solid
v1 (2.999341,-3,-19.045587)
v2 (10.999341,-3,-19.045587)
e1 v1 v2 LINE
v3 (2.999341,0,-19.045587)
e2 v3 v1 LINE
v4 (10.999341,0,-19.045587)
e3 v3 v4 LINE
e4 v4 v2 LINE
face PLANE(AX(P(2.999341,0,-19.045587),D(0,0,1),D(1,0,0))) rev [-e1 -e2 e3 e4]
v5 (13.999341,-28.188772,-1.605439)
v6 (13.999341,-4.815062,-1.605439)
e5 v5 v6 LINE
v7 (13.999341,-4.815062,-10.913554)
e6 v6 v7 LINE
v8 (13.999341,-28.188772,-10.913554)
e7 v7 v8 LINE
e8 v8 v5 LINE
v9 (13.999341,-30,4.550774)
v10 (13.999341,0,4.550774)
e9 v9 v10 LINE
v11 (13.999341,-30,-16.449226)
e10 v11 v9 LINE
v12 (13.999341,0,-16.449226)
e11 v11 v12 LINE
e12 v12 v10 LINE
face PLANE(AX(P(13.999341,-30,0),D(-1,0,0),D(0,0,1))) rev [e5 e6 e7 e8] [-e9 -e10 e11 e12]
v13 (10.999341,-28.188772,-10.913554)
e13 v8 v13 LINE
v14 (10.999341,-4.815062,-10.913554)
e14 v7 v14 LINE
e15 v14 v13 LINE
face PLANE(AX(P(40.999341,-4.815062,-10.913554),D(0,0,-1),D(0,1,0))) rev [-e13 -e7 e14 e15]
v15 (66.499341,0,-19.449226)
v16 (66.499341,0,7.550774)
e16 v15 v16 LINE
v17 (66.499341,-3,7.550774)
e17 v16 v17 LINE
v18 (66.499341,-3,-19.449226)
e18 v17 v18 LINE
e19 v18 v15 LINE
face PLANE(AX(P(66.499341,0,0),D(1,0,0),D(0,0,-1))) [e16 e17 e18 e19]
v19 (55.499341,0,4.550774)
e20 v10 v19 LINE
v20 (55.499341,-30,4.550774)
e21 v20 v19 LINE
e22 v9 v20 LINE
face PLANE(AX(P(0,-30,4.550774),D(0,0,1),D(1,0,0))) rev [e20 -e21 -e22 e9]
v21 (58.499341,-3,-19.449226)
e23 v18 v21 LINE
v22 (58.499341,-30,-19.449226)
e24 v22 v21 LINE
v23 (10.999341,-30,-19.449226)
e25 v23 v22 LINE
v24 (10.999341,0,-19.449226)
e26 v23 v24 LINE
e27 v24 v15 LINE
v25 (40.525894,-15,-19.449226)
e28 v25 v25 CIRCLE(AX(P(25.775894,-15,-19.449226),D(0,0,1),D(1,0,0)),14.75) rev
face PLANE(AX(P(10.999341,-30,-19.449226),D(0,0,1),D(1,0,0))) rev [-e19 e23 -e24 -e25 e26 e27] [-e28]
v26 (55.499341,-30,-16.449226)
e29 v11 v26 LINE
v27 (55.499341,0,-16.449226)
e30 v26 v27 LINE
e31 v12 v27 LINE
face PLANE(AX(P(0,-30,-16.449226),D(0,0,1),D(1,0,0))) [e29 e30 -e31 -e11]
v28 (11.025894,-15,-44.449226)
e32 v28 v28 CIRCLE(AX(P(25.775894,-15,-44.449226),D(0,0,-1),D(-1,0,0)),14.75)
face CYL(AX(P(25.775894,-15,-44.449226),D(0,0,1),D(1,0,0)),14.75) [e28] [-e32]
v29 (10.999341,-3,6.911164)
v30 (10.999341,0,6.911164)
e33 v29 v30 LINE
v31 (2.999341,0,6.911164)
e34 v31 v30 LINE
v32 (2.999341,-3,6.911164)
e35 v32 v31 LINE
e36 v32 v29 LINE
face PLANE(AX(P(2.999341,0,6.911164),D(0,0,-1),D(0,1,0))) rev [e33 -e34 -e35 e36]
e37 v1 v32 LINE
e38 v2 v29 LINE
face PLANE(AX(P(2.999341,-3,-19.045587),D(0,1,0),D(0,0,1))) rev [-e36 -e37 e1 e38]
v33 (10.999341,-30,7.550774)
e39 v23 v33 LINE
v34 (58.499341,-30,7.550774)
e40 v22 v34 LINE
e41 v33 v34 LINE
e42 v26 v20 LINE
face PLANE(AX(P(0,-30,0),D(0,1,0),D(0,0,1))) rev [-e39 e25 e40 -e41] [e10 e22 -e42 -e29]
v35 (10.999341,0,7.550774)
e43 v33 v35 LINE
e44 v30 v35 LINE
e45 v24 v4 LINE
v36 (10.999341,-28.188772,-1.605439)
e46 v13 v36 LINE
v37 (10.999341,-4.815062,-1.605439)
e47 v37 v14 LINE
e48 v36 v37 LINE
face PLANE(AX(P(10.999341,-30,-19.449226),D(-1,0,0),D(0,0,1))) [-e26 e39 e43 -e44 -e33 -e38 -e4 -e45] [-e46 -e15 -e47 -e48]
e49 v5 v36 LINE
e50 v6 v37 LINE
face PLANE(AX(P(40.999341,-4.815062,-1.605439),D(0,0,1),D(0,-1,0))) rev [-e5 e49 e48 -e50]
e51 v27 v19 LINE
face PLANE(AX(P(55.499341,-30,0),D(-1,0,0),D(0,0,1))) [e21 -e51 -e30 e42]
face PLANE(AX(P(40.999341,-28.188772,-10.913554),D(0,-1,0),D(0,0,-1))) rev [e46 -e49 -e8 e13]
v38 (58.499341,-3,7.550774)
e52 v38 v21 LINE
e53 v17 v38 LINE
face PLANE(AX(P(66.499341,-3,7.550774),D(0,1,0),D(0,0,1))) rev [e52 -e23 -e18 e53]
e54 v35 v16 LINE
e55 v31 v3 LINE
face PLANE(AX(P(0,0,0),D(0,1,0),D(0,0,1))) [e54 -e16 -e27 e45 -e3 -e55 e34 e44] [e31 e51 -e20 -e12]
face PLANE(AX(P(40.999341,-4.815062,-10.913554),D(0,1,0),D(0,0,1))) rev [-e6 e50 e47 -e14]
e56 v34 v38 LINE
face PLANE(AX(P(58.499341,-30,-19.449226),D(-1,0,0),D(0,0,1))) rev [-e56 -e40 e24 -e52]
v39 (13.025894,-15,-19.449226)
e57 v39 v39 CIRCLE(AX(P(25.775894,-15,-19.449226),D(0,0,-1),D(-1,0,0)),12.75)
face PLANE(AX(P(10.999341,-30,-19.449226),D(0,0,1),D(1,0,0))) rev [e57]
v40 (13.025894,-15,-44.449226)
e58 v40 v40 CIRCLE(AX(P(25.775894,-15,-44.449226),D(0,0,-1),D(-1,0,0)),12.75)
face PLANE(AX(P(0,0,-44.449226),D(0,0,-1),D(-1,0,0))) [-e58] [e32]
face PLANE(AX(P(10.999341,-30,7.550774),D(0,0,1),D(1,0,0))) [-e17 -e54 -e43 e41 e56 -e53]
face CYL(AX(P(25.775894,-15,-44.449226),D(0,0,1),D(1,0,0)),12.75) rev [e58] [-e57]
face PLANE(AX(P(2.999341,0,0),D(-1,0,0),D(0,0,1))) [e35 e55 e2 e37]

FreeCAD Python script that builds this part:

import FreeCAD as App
import Part
import Sketcher

doc = App.newDocument("Part")
params = doc.addObject("Spreadsheet::Sheet", "Params")
for row, (alias, value) in enumerate([
    ("sketch1_height", "27 mm"),
    ("sketch1_height2", "21 mm"),
    ("sketch1_width", "47.5 mm"),
    ("sketch1_width2", "41.5 mm"),
    ("pad1_length", "30 mm"),
    ("pocket1_length", "30 mm"),
    ("sketch3_width", "3 mm"),
    ("pad2_length", "8 mm"),
    ("sketch4_width", "3 mm"),
    ("sketch4_height", "27 mm"),
    ("pad3_length", "8 mm"),
    ("sketch5_diameter", "29.5 mm"),
    ("sketch5_diameter2", "25.5 mm"),
    ("pad4_length", "25 mm"),
], start=1):
    params.set(f"A{row}", alias)
    params.set(f"B{row}", "=" + value)
    params.setAlias(f"B{row}", alias)

body = doc.addObject("PartDesign::Body", "Body")

sketch1 = body.newObject("Sketcher::SketchObject", "Sketch")
sketch1.AttachmentSupport = (doc.getObject("XZ_Plane"), [""])
sketch1.MapMode = "FlatFace"
sketch1.addGeometry(Part.LineSegment(App.Vector(11, -19, 0), App.Vector(11, 8, 0)), False)
sketch1.addGeometry(Part.LineSegment(App.Vector(11, 8, 0), App.Vector(58, 8, 0)), False)
sketch1.addGeometry(Part.LineSegment(App.Vector(58, 8, 0), App.Vector(58, -19, 0)), False)
sketch1.addGeometry(Part.LineSegment(App.Vector(58, -19, 0), App.Vector(11, -19, 0)), False)
sketch1.addGeometry(Part.LineSegment(App.Vector(55, 5, 0), App.Vector(14, 5, 0)), False)
sketch1.addGeometry(Part.LineSegment(App.Vector(14, 5, 0), App.Vector(14, -16, 0)), False)
sketch1.addGeometry(Part.LineSegment(App.Vector(14, -16, 0), App.Vector(55, -16, 0)), False)
sketch1.addGeometry(Part.LineSegment(App.Vector(55, -16, 0), App.Vector(55, 5, 0)), False)
sketch1.addConstraint(Sketcher.Constraint("Coincident", 0, 2, 1, 1))
sketch1.addConstraint(Sketcher.Constraint("Coincident", 1, 2, 2, 1))
sketch1.addConstraint(Sketcher.Constraint("Coincident", 2, 2, 3, 1))
sketch1.addConstraint(Sketcher.Constraint("Coincident", 3, 2, 0, 1))
sketch1.addConstraint(Sketcher.Constraint("Coincident", 4, 2, 5, 1))
sketch1.addConstraint(Sketcher.Constraint("Coincident", 5, 2, 6, 1))
sketch1.addConstraint(Sketcher.Constraint("Coincident", 6, 2, 7, 1))
sketch1.addConstraint(Sketcher.Constraint("Coincident", 7, 2, 4, 1))
sketch1.addConstraint(Sketcher.Constraint("Vertical", 0))
sketch1.addConstraint(Sketcher.Constraint("Horizontal", 1))
sketch1.addConstraint(Sketcher.Constraint("Vertical", 2))
sketch1.addConstraint(Sketcher.Constraint("Horizontal", 3))
sketch1.addConstraint(Sketcher.Constraint("Horizontal", 4))
sketch1.addConstraint(Sketcher.Constraint("Vertical", 5))
sketch1.addConstraint(Sketcher.Constraint("Horizontal", 6))
sketch1.addConstraint(Sketcher.Constraint("Vertical", 7))
sketch1.addConstraint(Sketcher.Constraint("DistanceY", 0, 1, 0, 2, 27.0))
sketch1.addConstraint(Sketcher.Constraint("DistanceY", 5, 2, 5, 1, 21.0))
sketch1.addConstraint(Sketcher.Constraint("DistanceX", 1, 1, 1, 2, 47.5))
sketch1.addConstraint(Sketcher.Constraint("DistanceX", 4, 2, 4, 1, 41.5))
sketch1.addConstraint(Sketcher.Constraint("DistanceX", 0, 2, 4, 2, 3.0))
sketch1.addConstraint(Sketcher.Constraint("DistanceY", 4, 2, 0, 2, 3.0))
sketch1.addConstraint(Sketcher.Constraint("DistanceX", -1, 1, 0, 2, 10.999341))
sketch1.addConstraint(Sketcher.Constraint("DistanceY", -1, 1, 0, 2, 7.550774))
sketch1.setExpression("Constraints[16]", "Params.sketch1_height")
sketch1.setExpression("Constraints[17]", "Params.sketch1_height2")
sketch1.setExpression("Constraints[18]", "Params.sketch1_width")
sketch1.setExpression("Constraints[19]", "Params.sketch1_width2")
pad1 = body.newObject("PartDesign::Pad", "Pad")
pad1.Profile = sketch1
pad1.setExpression("Length", "Params.pad1_length")

sketch2 = body.newObject("Sketcher::SketchObject", "Sketch001")
sketch2.AttachmentSupport = (doc.getObject("YZ_Plane"), [""])
sketch2.MapMode = "FlatFace"
sketch2.AttachmentOffset = App.Placement(App.Vector(0, 0, 10.999341), App.Rotation())
sketch2.addGeometry(Part.LineSegment(App.Vector(-5, -11, 0), App.Vector(-28, -11, 0)), False)
sketch2.addGeometry(Part.LineSegment(App.Vector(-28, -11, 0), App.Vector(-28, -2, 0)), False)
sketch2.addGeometry(Part.LineSegment(App.Vector(-28, -2, 0), App.Vector(-5, -2, 0)), False)
sketch2.addGeometry(Part.LineSegment(App.Vector(-5, -2, 0), App.Vector(-5, -11, 0)), False)
sketch2.addConstraint(Sketcher.Constraint("Coincident", 0, 2, 1, 1))
sketch2.addConstraint(Sketcher.Constraint("Coincident", 1, 2, 2, 1))
sketch2.addConstraint(Sketcher.Constraint("Coincident", 2, 2, 3, 1))
sketch2.addConstraint(Sketcher.Constraint("Coincident", 3, 2, 0, 1))
sketch2.addConstraint(Sketcher.Constraint("Horizontal", 0))
sketch2.addConstraint(Sketcher.Constraint("Vertical", 1))
sketch2.addConstraint(Sketcher.Constraint("Horizontal", 2))
sketch2.addConstraint(Sketcher.Constraint("Vertical", 3))
sketch2.addConstraint(Sketcher.Constraint("DistanceX", 0, 2, 0, 1, 23.373709))
sketch2.addConstraint(Sketcher.Constraint("DistanceY", 1, 1, 1, 2, 9.308114))
sketch2.addConstraint(Sketcher.Constraint("DistanceX", 0, 2, -1, 1, 28.188772))
sketch2.addConstraint(Sketcher.Constraint("DistanceY", 1, 2, -1, 1, 1.605439))
pocket1 = body.newObject("PartDesign::Pocket", "Pocket")
pocket1.Profile = sketch2
pocket1.setExpression("Length", "Params.pocket1_length")
pocket1.Reversed = True

sketch3 = body.newObject("Sketcher::SketchObject", "Sketch002")
sketch3.AttachmentSupport = (doc.getObject("YZ_Plane"), [""])
sketch3.MapMode = "FlatFace"
sketch3.AttachmentOffset = App.Placement(App.Vector(0, 0, 10.999341), App.Rotation())
sketch3.addGeometry(Part.LineSegment(App.Vector(0, -19, 0), App.Vector(-3, -19, 0)), False)
sketch3.addGeometry(Part.LineSegment(App.Vector(-3, -19, 0), App.Vector(-3, 6.9, 0)), False)
sketch3.addGeometry(Part.LineSegment(App.Vector(-3, 6.9, 0), App.Vector(0, 6.9, 0)), False)
sketch3.addGeometry(Part.LineSegment(App.Vector(0, 6.9, 0), App.Vector(0, -19, 0)), False)
sketch3.addConstraint(Sketcher.Constraint("Coincident", 0, 2, 1, 1))
sketch3.addConstraint(Sketcher.Constraint("Coincident", 1, 2, 2, 1))
sketch3.addConstraint(Sketcher.Constraint("Coincident", 2, 2, 3, 1))
sketch3.addConstraint(Sketcher.Constraint("Coincident", 3, 2, 0, 1))
sketch3.addConstraint(Sketcher.Constraint("Horizontal", 0))
sketch3.addConstraint(Sketcher.Constraint("Vertical", 1))
sketch3.addConstraint(Sketcher.Constraint("Horizontal", 2))
sketch3.addConstraint(Sketcher.Constraint("Vertical", 3))
sketch3.addConstraint(Sketcher.Constraint("PointOnObject", 2, 2, -2))
sketch3.addConstraint(Sketcher.Constraint("DistanceX", 0, 2, 0, 1, 3.0))
sketch3.addConstraint(Sketcher.Constraint("DistanceY", 1, 1, 1, 2, 25.956751))
sketch3.addConstraint(Sketcher.Constraint("DistanceY", 0, 2, -1, 1, 19.045587))
sketch3.setExpression("Constraints[9]", "Params.sketch3_width")
pad2 = body.newObject("PartDesign::Pad", "Pad001")
pad2.Profile = sketch3
pad2.setExpression("Length", "Params.pad2_length")
pad2.Reversed = True

sketch4 = body.newObject("Sketcher::SketchObject", "Sketch003")
sketch4.AttachmentSupport = (doc.getObject("YZ_Plane"), [""])
sketch4.MapMode = "FlatFace"
sketch4.AttachmentOffset = App.Placement(App.Vector(0, 0, 58.499341), App.Rotation())
sketch4.addGeometry(Part.LineSegment(App.Vector(0, 7.6, 0), App.Vector(-3, 7.6, 0)), False)
sketch4.addGeometry(Part.LineSegment(App.Vector(-3, 7.6, 0), App.Vector(-3, -19.4, 0)), False)
sketch4.addGeometry(Part.LineSegment(App.Vector(-3, -19.4, 0), App.Vector(0, -19.4, 0)), False)
sketch4.addGeometry(Part.LineSegment(App.Vector(0, -19.4, 0), App.Vector(0, 7.6, 0)), False)
sketch4.addConstraint(Sketcher.Constraint("Coincident", 0, 2, 1, 1))
sketch4.addConstraint(Sketcher.Constraint("Coincident", 1, 2, 2, 1))
sketch4.addConstraint(Sketcher.Constraint("Coincident", 2, 2, 3, 1))
sketch4.addConstraint(Sketcher.Constraint("Coincident", 3, 2, 0, 1))
sketch4.addConstraint(Sketcher.Constraint("Horizontal", 0))
sketch4.addConstraint(Sketcher.Constraint("Vertical", 1))
sketch4.addConstraint(Sketcher.Constraint("Horizontal", 2))
sketch4.addConstraint(Sketcher.Constraint("Vertical", 3))
sketch4.addConstraint(Sketcher.Constraint("PointOnObject", 2, 2, -2))
sketch4.addConstraint(Sketcher.Constraint("DistanceX", 0, 2, 0, 1, 3.0))
sketch4.addConstraint(Sketcher.Constraint("DistanceY", 1, 2, 1, 1, 27.0))
sketch4.addConstraint(Sketcher.Constraint("DistanceY", -1, 1, 0, 2, 7.550774))
sketch4.setExpression("Constraints[9]", "Params.sketch4_width")
sketch4.setExpression("Constraints[10]", "Params.sketch4_height")
pad3 = body.newObject("PartDesign::Pad", "Pad002")
pad3.Profile = sketch4
pad3.setExpression("Length", "Params.pad3_length")

sketch5 = body.newObject("Sketcher::SketchObject", "Sketch004")
sketch5.AttachmentSupport = (doc.getObject("XY_Plane"), [""])
sketch5.MapMode = "FlatFace"
sketch5.AttachmentOffset = App.Placement(App.Vector(0, 0, -19.449226), App.Rotation())
sketch5.addGeometry(Part.Circle(App.Vector(26, -15, 0), App.Vector(0, 0, 1), 15), False)
sketch5.addGeometry(Part.Circle(App.Vector(26, -15, 0), App.Vector(0, 0, 1), 13), False)
sketch5.addConstraint(Sketcher.Constraint("Coincident", 1, 3, 0, 3))
sketch5.addConstraint(Sketcher.Constraint("Diameter", 0, 29.5))
sketch5.addConstraint(Sketcher.Constraint("Diameter", 1, 25.5))
sketch5.addConstraint(Sketcher.Constraint("DistanceY", 0, 3, -1, 1, 15.0))
sketch5.addConstraint(Sketcher.Constraint("DistanceX", -1, 1, 0, 3, 25.775894))
sketch5.setExpression("Constraints[1]", "Params.sketch5_diameter")
sketch5.setExpression("Constraints[2]", "Params.sketch5_diameter2")
pad4 = body.newObject("PartDesign::Pad", "Pad003")
pad4.Profile = sketch5
pad4.setExpression("Length", "Params.pad4_length")
pad4.Reversed = True

doc.recompute()
